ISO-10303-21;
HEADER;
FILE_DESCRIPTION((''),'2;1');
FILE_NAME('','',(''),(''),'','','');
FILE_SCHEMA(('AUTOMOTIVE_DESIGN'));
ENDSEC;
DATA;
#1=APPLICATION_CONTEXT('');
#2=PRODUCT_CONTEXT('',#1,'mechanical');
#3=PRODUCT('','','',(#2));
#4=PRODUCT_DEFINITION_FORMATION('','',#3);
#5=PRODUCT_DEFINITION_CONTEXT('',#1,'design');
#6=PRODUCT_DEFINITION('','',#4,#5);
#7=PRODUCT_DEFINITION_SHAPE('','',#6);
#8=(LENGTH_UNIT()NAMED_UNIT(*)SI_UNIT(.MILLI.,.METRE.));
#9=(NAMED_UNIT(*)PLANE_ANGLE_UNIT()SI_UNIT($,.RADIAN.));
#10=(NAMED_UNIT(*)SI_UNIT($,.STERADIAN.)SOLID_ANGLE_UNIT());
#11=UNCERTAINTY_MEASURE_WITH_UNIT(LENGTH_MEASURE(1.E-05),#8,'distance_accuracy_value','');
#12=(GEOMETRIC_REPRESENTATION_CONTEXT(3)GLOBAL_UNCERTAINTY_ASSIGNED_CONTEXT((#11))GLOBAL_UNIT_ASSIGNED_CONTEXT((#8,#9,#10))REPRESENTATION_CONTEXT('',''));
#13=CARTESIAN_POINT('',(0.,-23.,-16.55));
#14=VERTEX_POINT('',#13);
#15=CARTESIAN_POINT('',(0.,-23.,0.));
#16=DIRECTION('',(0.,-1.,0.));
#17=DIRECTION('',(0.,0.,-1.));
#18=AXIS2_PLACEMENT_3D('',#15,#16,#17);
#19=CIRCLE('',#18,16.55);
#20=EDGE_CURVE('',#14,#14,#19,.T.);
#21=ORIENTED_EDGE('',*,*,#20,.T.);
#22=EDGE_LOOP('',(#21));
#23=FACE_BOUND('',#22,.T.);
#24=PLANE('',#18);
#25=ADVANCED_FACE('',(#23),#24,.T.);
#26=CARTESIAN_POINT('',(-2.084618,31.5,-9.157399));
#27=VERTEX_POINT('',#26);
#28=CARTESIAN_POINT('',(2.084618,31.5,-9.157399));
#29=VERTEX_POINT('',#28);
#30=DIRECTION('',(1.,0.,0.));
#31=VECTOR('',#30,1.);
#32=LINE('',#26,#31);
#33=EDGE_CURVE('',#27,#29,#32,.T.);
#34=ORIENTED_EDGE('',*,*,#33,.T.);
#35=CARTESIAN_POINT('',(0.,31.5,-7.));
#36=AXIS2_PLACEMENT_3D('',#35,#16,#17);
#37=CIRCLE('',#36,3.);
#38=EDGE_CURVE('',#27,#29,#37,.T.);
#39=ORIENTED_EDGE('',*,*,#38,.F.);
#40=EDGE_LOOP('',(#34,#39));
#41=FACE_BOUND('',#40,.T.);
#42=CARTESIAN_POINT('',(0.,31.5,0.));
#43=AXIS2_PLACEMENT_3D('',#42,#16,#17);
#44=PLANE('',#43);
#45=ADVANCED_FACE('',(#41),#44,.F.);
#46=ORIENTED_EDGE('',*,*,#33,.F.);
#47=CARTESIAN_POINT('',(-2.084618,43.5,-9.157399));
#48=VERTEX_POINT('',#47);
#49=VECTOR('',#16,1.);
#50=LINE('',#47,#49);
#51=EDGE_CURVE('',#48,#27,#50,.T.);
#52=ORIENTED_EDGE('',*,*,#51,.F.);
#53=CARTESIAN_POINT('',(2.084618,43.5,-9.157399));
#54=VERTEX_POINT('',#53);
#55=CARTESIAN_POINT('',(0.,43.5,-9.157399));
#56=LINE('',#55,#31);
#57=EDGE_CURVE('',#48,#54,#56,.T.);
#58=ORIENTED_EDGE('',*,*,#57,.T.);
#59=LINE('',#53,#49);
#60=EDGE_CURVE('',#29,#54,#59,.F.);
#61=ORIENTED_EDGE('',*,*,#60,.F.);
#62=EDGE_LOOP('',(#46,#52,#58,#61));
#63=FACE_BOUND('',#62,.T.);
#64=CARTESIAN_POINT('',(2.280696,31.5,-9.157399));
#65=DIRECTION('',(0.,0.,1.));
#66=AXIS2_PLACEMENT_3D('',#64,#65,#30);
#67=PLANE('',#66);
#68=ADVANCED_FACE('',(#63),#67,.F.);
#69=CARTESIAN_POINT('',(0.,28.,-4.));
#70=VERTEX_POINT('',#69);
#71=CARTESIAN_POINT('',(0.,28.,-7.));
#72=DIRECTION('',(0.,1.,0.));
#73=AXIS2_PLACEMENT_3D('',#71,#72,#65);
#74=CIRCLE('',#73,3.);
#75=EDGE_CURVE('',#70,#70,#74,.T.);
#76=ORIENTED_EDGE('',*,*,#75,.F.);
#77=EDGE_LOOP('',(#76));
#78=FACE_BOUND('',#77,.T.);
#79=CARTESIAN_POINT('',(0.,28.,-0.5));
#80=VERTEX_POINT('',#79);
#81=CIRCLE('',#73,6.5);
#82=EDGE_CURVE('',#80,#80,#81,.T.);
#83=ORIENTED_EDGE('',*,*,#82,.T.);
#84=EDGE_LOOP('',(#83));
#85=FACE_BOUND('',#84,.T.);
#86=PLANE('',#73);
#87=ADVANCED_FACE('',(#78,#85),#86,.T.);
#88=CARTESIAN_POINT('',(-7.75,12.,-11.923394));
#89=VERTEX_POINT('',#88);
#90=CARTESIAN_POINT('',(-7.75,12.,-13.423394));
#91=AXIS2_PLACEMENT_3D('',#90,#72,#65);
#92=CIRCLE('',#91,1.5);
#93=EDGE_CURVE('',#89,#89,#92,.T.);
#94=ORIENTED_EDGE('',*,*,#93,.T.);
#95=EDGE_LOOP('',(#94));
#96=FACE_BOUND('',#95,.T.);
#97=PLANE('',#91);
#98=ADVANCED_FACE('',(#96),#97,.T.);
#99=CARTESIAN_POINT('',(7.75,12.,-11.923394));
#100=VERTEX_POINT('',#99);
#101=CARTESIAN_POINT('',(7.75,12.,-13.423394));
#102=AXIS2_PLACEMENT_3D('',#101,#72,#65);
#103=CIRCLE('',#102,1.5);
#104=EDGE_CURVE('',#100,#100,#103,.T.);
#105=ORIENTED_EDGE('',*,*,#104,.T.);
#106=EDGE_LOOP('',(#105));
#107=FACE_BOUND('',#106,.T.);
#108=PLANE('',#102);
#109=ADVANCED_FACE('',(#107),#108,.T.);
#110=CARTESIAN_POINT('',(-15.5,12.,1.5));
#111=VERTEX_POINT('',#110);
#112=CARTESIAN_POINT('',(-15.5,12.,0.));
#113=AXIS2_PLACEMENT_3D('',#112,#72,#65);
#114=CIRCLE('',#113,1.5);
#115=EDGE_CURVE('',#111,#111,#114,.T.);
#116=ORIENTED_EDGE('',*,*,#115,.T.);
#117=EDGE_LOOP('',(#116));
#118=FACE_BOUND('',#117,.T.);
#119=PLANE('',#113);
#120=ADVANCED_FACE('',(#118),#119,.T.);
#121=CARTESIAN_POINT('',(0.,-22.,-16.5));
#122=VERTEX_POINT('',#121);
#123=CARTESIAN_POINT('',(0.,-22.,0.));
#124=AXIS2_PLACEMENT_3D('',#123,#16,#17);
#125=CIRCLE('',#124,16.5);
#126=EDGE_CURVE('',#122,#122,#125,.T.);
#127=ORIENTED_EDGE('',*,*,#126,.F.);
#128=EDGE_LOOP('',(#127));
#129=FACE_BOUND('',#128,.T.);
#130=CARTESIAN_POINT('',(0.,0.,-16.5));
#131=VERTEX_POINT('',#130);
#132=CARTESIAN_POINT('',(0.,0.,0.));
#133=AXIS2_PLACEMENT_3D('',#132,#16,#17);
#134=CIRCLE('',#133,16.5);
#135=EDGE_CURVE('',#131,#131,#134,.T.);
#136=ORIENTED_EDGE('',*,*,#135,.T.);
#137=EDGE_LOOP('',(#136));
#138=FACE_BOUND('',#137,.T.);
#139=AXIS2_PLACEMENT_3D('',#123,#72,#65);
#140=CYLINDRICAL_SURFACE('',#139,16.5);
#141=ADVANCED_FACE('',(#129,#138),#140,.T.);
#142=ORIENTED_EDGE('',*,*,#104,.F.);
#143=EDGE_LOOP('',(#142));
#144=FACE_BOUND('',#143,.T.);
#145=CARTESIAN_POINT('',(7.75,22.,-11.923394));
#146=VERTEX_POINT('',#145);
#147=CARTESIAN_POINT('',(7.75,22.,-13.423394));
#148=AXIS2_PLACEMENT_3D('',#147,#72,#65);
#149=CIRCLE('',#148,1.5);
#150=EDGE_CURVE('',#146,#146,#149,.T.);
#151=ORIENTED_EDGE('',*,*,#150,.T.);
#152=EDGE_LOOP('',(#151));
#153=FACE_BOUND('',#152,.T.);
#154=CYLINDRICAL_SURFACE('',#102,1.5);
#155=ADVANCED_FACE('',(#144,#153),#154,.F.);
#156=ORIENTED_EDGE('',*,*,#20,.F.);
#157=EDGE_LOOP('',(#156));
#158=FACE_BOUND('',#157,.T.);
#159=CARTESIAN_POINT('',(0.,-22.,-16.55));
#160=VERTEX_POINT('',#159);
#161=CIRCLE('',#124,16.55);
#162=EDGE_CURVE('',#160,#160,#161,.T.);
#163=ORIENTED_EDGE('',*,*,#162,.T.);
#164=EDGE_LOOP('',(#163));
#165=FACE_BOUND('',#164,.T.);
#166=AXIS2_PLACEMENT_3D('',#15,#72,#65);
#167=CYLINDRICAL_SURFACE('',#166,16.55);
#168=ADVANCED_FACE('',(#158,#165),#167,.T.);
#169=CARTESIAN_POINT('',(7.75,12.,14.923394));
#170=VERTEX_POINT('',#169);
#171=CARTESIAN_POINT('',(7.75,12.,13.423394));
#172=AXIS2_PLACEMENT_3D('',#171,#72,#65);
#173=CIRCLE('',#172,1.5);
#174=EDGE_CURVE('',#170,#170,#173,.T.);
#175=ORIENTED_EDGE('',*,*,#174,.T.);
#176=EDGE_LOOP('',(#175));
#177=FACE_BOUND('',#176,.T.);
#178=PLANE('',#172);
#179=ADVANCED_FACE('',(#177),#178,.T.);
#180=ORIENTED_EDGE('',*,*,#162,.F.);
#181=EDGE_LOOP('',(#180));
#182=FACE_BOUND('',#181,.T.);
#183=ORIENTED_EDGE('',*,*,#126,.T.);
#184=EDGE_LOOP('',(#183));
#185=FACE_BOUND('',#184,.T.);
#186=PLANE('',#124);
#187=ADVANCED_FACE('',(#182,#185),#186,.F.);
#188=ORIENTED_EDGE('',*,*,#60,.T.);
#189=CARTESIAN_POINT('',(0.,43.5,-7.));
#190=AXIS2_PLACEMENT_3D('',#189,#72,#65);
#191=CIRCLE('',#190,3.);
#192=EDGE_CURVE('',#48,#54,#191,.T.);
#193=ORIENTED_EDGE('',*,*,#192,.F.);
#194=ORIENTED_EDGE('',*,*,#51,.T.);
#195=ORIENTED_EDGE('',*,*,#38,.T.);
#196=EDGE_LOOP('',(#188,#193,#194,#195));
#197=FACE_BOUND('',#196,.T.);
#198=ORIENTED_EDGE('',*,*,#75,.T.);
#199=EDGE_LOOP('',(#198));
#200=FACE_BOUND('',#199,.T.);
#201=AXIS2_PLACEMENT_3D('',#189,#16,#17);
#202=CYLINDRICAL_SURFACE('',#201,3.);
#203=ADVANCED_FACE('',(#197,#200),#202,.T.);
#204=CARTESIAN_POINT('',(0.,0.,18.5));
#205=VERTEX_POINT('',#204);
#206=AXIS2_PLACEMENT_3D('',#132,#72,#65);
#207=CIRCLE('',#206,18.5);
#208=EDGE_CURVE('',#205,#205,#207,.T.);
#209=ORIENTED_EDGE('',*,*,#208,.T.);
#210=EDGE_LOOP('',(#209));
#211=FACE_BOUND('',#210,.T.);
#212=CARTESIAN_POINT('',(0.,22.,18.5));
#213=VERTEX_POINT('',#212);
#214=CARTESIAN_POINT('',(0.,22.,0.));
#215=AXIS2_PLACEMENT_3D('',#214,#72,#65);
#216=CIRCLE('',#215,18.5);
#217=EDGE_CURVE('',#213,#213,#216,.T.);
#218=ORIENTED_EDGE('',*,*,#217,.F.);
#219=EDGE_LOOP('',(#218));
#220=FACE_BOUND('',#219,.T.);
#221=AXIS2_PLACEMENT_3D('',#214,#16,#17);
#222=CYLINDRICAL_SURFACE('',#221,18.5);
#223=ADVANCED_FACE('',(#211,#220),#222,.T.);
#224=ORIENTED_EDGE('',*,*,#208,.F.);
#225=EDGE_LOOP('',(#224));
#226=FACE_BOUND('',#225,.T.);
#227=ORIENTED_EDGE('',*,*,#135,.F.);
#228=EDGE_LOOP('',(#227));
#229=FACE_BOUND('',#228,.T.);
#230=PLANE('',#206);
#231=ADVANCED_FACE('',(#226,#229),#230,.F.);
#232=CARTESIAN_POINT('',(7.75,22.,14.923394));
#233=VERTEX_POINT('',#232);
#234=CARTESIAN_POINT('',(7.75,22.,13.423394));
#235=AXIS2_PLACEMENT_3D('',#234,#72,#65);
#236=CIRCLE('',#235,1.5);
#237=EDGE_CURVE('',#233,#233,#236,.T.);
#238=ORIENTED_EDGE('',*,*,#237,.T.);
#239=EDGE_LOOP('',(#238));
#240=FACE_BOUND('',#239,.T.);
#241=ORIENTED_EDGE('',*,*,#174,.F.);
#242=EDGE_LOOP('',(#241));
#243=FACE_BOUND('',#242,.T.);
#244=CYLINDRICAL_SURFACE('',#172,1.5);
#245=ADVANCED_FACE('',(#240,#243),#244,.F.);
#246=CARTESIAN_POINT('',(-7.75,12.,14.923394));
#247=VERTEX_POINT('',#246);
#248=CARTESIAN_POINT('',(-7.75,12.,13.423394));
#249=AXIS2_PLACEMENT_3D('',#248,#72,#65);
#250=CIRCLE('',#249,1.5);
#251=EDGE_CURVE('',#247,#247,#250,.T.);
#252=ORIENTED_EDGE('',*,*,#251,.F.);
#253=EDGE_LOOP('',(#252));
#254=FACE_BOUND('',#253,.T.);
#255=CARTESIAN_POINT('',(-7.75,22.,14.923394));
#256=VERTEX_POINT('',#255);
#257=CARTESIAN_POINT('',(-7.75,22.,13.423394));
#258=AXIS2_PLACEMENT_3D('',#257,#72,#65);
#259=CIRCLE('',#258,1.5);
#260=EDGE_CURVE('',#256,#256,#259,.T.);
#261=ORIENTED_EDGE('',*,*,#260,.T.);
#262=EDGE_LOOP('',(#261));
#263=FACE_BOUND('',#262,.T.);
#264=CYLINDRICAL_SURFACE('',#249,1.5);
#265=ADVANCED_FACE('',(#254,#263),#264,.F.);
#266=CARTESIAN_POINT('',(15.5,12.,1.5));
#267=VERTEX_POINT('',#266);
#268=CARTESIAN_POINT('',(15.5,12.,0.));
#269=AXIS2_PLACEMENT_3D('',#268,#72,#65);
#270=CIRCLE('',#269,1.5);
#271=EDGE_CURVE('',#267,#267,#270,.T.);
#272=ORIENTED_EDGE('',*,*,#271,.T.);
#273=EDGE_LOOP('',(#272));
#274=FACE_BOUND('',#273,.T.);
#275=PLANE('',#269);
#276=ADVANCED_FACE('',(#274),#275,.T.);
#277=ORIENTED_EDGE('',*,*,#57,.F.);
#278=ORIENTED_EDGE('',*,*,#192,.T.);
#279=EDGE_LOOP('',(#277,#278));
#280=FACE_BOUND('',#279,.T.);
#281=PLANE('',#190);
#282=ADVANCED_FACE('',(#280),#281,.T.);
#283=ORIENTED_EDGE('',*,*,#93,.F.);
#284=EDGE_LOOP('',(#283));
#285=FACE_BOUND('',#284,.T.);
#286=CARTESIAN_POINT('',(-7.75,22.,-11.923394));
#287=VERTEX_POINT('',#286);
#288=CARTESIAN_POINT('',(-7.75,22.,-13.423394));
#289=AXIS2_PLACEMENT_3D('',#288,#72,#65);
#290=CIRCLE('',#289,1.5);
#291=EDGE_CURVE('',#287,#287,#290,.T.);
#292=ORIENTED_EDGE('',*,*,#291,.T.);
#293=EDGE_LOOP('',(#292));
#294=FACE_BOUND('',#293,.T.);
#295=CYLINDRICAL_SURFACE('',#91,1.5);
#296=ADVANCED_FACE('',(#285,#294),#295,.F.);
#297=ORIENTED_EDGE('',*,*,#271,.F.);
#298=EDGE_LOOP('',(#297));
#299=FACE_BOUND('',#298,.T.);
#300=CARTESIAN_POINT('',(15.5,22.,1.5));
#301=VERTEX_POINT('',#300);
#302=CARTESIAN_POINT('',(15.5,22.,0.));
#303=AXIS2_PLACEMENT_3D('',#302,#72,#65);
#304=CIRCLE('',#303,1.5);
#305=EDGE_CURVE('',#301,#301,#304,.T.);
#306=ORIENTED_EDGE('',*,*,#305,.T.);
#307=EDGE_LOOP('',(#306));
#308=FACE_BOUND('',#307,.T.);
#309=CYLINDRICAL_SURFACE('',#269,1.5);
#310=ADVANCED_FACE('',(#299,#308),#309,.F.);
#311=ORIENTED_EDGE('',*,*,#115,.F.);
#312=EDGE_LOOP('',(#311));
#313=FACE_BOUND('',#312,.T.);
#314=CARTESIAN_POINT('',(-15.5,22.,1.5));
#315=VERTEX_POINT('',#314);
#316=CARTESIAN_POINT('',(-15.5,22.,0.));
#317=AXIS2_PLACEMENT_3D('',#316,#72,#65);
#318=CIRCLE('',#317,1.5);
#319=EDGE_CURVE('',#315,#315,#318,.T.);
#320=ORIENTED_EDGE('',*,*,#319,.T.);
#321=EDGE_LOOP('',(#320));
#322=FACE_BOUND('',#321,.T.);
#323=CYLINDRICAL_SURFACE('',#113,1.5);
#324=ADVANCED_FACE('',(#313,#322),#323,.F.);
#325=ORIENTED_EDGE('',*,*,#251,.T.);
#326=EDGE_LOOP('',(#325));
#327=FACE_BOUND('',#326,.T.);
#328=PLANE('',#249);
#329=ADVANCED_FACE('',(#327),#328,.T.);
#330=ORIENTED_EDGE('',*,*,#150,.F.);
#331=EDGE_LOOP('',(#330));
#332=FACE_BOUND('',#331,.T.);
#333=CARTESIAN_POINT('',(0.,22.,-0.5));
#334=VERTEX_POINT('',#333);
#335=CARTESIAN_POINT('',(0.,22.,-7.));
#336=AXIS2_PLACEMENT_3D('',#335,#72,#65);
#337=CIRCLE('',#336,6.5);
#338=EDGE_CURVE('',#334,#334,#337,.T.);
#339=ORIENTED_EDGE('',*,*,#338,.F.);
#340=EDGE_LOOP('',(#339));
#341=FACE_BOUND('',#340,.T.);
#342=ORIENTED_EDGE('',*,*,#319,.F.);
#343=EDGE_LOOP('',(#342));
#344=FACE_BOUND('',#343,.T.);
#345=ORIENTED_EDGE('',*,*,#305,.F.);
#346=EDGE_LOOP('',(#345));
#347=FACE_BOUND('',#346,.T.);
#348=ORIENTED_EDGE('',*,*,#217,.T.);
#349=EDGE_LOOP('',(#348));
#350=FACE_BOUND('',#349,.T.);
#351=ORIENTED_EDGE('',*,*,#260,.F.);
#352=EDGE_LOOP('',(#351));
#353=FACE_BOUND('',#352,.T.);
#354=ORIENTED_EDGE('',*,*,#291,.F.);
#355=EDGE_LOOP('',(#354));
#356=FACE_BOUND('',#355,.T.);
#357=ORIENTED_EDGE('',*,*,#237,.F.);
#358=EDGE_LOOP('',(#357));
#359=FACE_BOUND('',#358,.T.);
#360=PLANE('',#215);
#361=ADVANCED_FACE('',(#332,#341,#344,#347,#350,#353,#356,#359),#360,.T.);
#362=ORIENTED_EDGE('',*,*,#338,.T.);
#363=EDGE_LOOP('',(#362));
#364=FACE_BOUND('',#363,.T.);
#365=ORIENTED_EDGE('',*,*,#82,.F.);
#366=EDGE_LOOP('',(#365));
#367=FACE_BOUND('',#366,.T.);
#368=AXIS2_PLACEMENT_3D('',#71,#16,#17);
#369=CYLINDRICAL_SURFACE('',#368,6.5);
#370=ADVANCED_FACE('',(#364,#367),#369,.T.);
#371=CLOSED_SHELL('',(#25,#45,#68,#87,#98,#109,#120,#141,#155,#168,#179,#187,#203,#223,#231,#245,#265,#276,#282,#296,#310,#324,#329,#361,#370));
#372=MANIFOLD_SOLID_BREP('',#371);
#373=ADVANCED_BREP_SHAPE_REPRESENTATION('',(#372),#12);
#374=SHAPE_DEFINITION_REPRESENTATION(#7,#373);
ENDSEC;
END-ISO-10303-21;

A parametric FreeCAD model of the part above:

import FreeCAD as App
import Part
import Sketcher

V = App.Vector

doc = App.newDocument("Part")
body = doc.addObject("PartDesign::Body", "Body")

# Sketch on XZ plane
sketch1 = body.newObject("Sketcher::SketchObject", "Sketch")
sketch1.AttachmentSupport = (doc.getObject("XZ_Plane"), [""])
sketch1.MapMode = "FlatFace"
sketch1.addGeometry(Part.Circle(V(0, 0, 0), V(0, 0, 1), 18), False)
sketch1.addConstraint([
    Sketcher.Constraint("Coincident", 0, 3, -1, 1),
    Sketcher.Constraint("Diameter", 0, 37.0),
])
pad1 = body.newObject("PartDesign::Pad", "Pad")
pad1.Profile = sketch1
pad1.Length = 22
pad1.Reversed = True

# Sketch on XZ plane
sketch2 = body.newObject("Sketcher::SketchObject", "Sketch001")
sketch2.AttachmentSupport = (doc.getObject("XZ_Plane"), [""])
sketch2.MapMode = "FlatFace"
sketch2.addGeometry(Part.Circle(V(0, 0, 0), V(0, 0, 1), 16), False)
sketch2.addConstraint([
    Sketcher.Constraint("Coincident", 0, 3, -1, 1),
    Sketcher.Constraint("Diameter", 0, 33.0),
])
pad2 = body.newObject("PartDesign::Pad", "Pad001")
pad2.Profile = sketch2
pad2.Length = 22

# Sketch on XZ plane
sketch3 = body.newObject("Sketcher::SketchObject", "Sketch002")
sketch3.AttachmentSupport = (doc.getObject("XZ_Plane"), [""])
sketch3.MapMode = "FlatFace"
sketch3.AttachmentOffset = App.Placement(V(0, 0, 22), App.Rotation())
sketch3.addGeometry(Part.Circle(V(0, 0, 0), V(0, 0, 1), 17), False)
sketch3.addConstraint([
    Sketcher.Constraint("Coincident", 0, 3, -1, 1),
    Sketcher.Constraint("Diameter", 0, 33.1),
])
pad3 = body.newObject("PartDesign::Pad", "Pad002")
pad3.Profile = sketch3
pad3.Length = 1

# Sketch on XZ plane
sketch4 = body.newObject("Sketcher::SketchObject", "Sketch003")
sketch4.AttachmentSupport = (doc.getObject("XZ_Plane"), [""])
sketch4.MapMode = "FlatFace"
sketch4.AttachmentOffset = App.Placement(V(0, 0, -22), App.Rotation())
sketch4.addGeometry(Part.Circle(V(0, -7, 0), V(0, 0, 1), 6), False)
sketch4.addConstraint([
    Sketcher.Constraint("PointOnObject", 0, 3, -2),
    Sketcher.Constraint("Diameter", 0, 13.0),
    Sketcher.Constraint("DistanceY", 0, 3, -1, 1, 7.0),
])
pad4 = body.newObject("PartDesign::Pad", "Pad003")
pad4.Profile = sketch4
pad4.Length = 6
pad4.Reversed = True

# Sketch on XZ plane
sketch5 = body.newObject("Sketcher::SketchObject", "Sketch004")
sketch5.AttachmentSupport = (doc.getObject("XZ_Plane"), [""])
sketch5.MapMode = "FlatFace"
sketch5.AttachmentOffset = App.Placement(V(0, 0, -28), App.Rotation())
sketch5.addGeometry(Part.Circle(V(0, -7, 0), V(0, 0, 1), 3), False)
sketch5.addConstraint([
    Sketcher.Constraint("PointOnObject", 0, 3, -2),
    Sketcher.Constraint("Diameter", 0, 6.0),
    Sketcher.Constraint("DistanceY", 0, 3, -1, 1, 7.0),
])
pad5 = body.newObject("PartDesign::Pad", "Pad004")
pad5.Profile = sketch5
pad5.Length = 15.5
pad5.Reversed = True

# Sketch on XZ plane
sketch6 = body.newObject("Sketcher::SketchObject", "Sketch005")
sketch6.AttachmentSupport = (doc.getObject("XZ_Plane"), [""])
sketch6.MapMode = "FlatFace"
sketch6.AttachmentOffset = App.Placement(V(0, 0, -43.5), App.Rotation())
sketch6.addGeometry([
    Part.LineSegment(V(2.3, -9.2, 0), V(2.3, -11, 0)),
    Part.LineSegment(V(2.3, -11, 0), V(-3.1, -11, 0)),
    Part.LineSegment(V(-3.1, -11, 0), V(-3.1, -9.2, 0)),
    Part.LineSegment(V(-3.1, -9.2, 0), V(2.3, -9.2, 0)),
], False)
sketch6.addConstraint([
    Sketcher.Constraint("Coincident", 0, 2, 1, 1),
    Sketcher.Constraint("Coincident", 1, 2, 2, 1),
    Sketcher.Constraint("Coincident", 2, 2, 3, 1),
    Sketcher.Constraint("Coincident", 3, 2, 0, 1),
    Sketcher.Constraint("Vertical", 0),
    Sketcher.Constraint("Horizontal", 1),
    Sketcher.Constraint("Vertical", 2),
    Sketcher.Constraint("Horizontal", 3),
    Sketcher.Constraint("DistanceY", 2, 2, -1, 1, 9.157399),
    Sketcher.Constraint("DistanceX", 1, 2, 1, 1, 5.361547),
    Sketcher.Constraint("DistanceY", 0, 2, 0, 1, 1.835506),
    Sketcher.Constraint("DistanceX", 1, 2, -1, 1, 3.080851),
])
pocket1 = body.newObject("PartDesign::Pocket", "Pocket")
pocket1.Profile = sketch6
pocket1.Length = 12
pocket1.Reversed = True

# Sketch on XZ plane
sketch7 = body.newObject("Sketcher::SketchObject", "Sketch006")
sketch7.AttachmentSupport = (doc.getObject("XZ_Plane"), [""])
sketch7.MapMode = "FlatFace"
sketch7.AttachmentOffset = App.Placement(V(0, 0, -22), App.Rotation())
sketch7.addGeometry([
    Part.Circle(V(15.5, 0, 0), V(0, 0, 1), 1.5),  # 0
    Part.Circle(V(7.8, 13.4, 0), V(0, 0, 1), 1.5),  # 1
    Part.Circle(V(-7.8, 13.4, 0), V(0, 0, 1), 1.5),  # 2
    Part.Circle(V(-15.5, 0, 0), V(0, 0, 1), 1.5),  # 3
    Part.Circle(V(-7.8, -13.4, 0), V(0, 0, 1), 1.5),  # 4
    Part.Circle(V(7.8, -13.4, 0), V(0, 0, 1), 1.5),  # 5
], False)
sketch7.addConstraint([
    Sketcher.Constraint("Equal", 0, 1),
    Sketcher.Constraint("Equal", 1, 2),
    Sketcher.Constraint("Equal", 2, 3),
    Sketcher.Constraint("Equal", 3, 4),
    Sketcher.Constraint("Equal", 4, 5),
    Sketcher.Constraint("Symmetric", 0, 3, 3, 3, -1, 1),
    Sketcher.Constraint("Symmetric", 1, 3, 4, 3, -1, 1),
    Sketcher.Constraint("Symmetric", 2, 3, 5, 3, -1, 1),
    Sketcher.Constraint("Symmetric", 1, 3, 2, 3, -2),
    Sketcher.Constraint("PointOnObject", 0, 3, -1),
    Sketcher.Constraint("Diameter", 0, 3.0),
    Sketcher.Constraint("DistanceX", 3, 3, 0, 3, 31.0),
    Sketcher.Constraint("DistanceX", 2, 3, 1, 3, 15.5),
    Sketcher.Constraint("DistanceY", -1, 1, 1, 3, 13.423394),
])
pocket2 = body.newObject("PartDesign::Pocket", "Pocket001")
pocket2.Profile = sketch7
pocket2.Length = 10
pocket2.Reversed = True

doc.recompute()
